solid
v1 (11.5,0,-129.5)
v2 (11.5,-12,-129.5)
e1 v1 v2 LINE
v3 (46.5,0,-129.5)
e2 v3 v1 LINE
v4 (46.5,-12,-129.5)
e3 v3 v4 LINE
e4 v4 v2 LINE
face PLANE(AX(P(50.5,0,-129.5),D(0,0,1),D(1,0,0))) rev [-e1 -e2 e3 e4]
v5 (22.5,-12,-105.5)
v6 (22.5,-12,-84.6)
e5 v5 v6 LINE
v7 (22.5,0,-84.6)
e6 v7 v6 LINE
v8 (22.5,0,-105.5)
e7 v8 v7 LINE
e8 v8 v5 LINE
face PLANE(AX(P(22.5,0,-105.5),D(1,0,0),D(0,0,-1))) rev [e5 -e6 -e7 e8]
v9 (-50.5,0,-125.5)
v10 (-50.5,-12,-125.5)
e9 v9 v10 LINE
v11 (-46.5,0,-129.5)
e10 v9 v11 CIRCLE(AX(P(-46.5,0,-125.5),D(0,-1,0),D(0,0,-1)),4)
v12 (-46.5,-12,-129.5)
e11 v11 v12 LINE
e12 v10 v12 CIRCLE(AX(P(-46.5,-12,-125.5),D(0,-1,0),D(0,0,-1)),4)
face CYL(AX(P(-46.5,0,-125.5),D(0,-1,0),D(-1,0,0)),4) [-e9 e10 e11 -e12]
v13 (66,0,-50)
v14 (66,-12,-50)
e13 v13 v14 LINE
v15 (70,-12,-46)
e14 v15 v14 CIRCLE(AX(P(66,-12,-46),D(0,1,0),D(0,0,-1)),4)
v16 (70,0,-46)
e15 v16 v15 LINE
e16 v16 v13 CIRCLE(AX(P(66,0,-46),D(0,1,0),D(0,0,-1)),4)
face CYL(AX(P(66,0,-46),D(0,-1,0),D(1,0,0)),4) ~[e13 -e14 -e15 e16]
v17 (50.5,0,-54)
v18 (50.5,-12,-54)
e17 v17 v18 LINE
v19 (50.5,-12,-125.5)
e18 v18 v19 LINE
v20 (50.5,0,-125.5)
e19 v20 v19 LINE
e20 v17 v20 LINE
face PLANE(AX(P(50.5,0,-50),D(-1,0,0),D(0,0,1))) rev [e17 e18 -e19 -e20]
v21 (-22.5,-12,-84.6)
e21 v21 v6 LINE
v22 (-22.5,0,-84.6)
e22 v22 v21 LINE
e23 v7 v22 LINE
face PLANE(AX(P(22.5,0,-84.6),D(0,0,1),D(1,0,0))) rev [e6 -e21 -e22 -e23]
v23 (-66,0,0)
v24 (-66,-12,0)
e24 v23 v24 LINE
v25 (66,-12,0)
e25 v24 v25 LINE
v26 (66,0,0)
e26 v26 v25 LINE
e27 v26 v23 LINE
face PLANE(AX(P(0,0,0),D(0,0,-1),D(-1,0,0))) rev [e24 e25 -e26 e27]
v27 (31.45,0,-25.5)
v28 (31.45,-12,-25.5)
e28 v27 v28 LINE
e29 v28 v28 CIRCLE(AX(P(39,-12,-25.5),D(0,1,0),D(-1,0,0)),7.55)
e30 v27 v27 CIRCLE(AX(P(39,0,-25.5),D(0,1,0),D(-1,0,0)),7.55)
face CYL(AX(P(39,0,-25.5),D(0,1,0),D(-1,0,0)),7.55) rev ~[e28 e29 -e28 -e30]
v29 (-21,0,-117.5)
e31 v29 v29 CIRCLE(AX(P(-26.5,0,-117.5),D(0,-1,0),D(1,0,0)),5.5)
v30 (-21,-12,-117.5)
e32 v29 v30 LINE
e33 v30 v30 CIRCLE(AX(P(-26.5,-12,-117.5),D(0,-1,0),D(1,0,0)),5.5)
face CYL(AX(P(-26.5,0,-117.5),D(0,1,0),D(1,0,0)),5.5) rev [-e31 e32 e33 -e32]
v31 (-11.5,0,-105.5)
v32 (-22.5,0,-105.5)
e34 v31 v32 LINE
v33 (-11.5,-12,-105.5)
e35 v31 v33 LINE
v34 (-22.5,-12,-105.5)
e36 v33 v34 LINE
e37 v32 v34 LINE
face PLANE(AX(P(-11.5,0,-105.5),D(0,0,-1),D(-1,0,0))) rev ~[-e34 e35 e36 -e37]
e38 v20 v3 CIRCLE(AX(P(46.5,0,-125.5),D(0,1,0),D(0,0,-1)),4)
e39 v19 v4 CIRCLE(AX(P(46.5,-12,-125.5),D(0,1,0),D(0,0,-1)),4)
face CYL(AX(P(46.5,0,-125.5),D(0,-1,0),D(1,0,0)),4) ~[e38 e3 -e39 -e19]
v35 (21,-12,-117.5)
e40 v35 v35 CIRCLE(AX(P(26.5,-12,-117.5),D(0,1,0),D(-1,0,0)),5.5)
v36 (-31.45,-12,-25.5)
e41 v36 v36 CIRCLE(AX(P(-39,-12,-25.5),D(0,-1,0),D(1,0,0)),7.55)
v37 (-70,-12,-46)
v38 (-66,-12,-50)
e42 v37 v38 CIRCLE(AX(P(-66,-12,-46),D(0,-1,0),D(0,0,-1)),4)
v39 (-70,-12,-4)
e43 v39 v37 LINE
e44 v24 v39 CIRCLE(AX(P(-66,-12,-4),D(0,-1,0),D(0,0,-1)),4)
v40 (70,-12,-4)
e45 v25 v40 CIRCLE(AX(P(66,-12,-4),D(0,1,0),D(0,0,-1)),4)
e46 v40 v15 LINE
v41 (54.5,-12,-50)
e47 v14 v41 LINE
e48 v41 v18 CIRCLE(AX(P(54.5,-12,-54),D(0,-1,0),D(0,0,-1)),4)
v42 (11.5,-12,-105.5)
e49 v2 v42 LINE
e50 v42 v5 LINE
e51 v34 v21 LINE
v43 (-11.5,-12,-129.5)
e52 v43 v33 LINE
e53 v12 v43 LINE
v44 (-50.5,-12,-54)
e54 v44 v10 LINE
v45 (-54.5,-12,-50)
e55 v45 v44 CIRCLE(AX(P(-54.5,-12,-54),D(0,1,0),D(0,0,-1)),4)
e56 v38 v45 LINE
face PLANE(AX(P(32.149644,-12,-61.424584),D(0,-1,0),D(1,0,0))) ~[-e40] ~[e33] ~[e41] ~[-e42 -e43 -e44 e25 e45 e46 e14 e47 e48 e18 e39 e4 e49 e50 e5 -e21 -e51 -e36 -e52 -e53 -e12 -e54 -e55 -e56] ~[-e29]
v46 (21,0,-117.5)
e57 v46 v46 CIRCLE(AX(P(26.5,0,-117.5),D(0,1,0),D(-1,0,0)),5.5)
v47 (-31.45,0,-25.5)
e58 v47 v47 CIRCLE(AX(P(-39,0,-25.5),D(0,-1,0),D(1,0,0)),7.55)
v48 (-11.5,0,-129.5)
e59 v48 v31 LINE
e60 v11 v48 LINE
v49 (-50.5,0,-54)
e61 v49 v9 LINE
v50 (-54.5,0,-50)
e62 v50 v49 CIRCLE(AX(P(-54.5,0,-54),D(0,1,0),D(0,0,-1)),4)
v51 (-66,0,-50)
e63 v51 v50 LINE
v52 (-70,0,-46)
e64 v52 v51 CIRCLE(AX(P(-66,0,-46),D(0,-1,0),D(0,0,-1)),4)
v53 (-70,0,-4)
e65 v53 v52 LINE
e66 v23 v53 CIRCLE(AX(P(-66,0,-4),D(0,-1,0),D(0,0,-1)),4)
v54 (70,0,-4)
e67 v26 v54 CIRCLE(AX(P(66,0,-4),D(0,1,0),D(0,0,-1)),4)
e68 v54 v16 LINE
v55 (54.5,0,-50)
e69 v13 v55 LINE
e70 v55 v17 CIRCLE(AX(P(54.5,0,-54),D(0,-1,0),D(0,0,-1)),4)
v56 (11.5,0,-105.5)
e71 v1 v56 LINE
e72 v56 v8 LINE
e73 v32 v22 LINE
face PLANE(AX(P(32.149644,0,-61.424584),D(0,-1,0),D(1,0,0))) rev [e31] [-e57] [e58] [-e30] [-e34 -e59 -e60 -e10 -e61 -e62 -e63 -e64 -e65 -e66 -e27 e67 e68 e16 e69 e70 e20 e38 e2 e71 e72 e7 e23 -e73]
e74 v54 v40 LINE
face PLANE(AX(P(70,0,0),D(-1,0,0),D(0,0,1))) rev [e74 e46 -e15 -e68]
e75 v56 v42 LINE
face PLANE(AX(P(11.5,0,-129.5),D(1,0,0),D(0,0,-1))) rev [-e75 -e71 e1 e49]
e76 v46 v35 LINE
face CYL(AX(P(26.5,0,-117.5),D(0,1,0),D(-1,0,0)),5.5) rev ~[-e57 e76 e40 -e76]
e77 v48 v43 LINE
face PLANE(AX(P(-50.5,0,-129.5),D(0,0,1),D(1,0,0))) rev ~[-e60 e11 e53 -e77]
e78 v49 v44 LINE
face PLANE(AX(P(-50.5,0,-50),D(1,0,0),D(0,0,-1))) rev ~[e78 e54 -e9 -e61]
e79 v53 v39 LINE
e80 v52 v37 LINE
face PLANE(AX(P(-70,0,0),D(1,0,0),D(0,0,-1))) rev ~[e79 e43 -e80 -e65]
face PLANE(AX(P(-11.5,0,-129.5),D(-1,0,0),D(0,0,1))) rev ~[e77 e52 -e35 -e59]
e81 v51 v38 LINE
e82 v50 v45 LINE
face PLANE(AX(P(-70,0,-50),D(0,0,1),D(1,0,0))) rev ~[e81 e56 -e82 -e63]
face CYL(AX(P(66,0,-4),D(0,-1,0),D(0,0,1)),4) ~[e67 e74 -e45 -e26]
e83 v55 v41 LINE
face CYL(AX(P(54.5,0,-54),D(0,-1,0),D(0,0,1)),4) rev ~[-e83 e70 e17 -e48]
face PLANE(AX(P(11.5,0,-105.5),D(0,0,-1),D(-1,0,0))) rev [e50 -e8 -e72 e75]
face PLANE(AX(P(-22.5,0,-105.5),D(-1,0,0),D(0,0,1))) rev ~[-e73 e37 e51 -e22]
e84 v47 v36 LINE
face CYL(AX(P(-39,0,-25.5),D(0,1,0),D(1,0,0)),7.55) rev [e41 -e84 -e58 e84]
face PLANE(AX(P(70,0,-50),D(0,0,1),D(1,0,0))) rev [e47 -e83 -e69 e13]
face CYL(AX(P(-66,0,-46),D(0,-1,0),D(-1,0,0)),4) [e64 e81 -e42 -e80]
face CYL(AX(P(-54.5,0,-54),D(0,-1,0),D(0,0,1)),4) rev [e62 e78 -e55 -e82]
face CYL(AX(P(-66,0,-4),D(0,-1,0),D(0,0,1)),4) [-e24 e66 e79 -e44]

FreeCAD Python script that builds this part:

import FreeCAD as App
import Part
import Sketcher
from FreeCAD import Vector
Q = App.Units.Quantity


def edges_at(feature, points):
    """Names of the edges that pass closest to the given points."""
    edges = feature.Shape.Edges
    near = lambda p: min(range(len(edges)), key=lambda i: edges[i].distToShape(Part.Vertex(*p))[0])
    return sorted({f"Edge{near(p) + 1}" for p in points})


def add_polygon(sketch, points):
    """Adds a closed chain of lines whose ends are joined by coincident constraints."""
    first, n = sketch.GeometryCount, len(points)
    for a, b in zip(points, points[1:] + points[:1]):
        sketch.addGeometry(Part.LineSegment(App.Vector(*a, 0), App.Vector(*b, 0)), False)
    for i in range(n):
        sketch.addConstraint(Sketcher.Constraint("Coincident", first + i, 2, first + (i + 1) % n, 1))

doc = App.newDocument("Part")
body = doc.addObject("PartDesign::Body", "Body")

# Sketch on XZ plane
sketch1 = doc.addObject("Sketcher::SketchObject", "Sketch")
body.addObject(sketch1)
sketch1.AttachmentSupport = (doc.XZ_Plane, [""])
sketch1.MapMode = "FlatFace"
add_polygon(sketch1, [(0, -85), (0, 0), (-70, 0), (-70, -50), (-50, -50), (-50, -130), (-12, -130), (-12, -106), (-22, -106), (-22, -85)])  # lines 0-9
sketch1.addGeometry(Part.Circle(Vector(-26, -118, 0), Vector(0, 0, 1), 6), False)  # 10
sketch1.addGeometry(Part.Circle(Vector(-39, -26, 0), Vector(0, 0, 1), 8), False)  # 11
sketch1.addConstraint([
    Sketcher.Constraint("Vertical", 0),
    Sketcher.Constraint("Horizontal", 1),
    Sketcher.Constraint("Vertical", 2),
    Sketcher.Constraint("Horizontal", 3),
    Sketcher.Constraint("Vertical", 4),
    Sketcher.Constraint("Horizontal", 5),
    Sketcher.Constraint("Vertical", 6),
    Sketcher.Constraint("Horizontal", 7),
    Sketcher.Constraint("Vertical", 8),
    Sketcher.Constraint("Horizontal", 9),
    Sketcher.Constraint("Coincident", 0, 2, -1, 1),
    Sketcher.Constraint("Diameter", 10, Q("11 mm")),
    Sketcher.Constraint("Diameter", 11, Q("15.1 mm")),
    Sketcher.Constraint("DistanceX", 1, 2, 1, 1, Q("70 mm")),
    Sketcher.Constraint("DistanceX", 5, 1, 5, 2, Q("39 mm")),
    Sketcher.Constraint("DistanceX", 7, 2, 7, 1, Q("11 mm")),
    Sketcher.Constraint("DistanceY", 2, 2, 2, 1, Q("50 mm")),
    Sketcher.Constraint("DistanceY", 6, 1, 6, 2, Q("24 mm")),
    Sketcher.Constraint("DistanceX", 3, 1, 3, 2, Q("19.5 mm")),
    Sketcher.Constraint("DistanceY", 0, 1, 0, 2, Q("84.6 mm")),
    Sketcher.Constraint("DistanceY", 4, 2, 4, 1, Q("79.5 mm")),
    Sketcher.Constraint("DistanceX", 11, 3, -1, 1, Q("39 mm")),
    Sketcher.Constraint("DistanceY", 10, 3, 11, 3, Q("92 mm")),
    Sketcher.Constraint("DistanceX", 3, 2, 10, 3, Q("24 mm")),
    Sketcher.Constraint("DistanceY", 4, 2, 10, 3, Q("12 mm")),
])
pad1 = doc.addObject("PartDesign::Pad", "Pad")
body.addObject(pad1)
pad1.Profile = sketch1
pad1.Length = 12
doc.recompute()

fillet = doc.addObject("PartDesign::Fillet", "Fillet")
body.addObject(fillet)
fillet.Base = (pad1, edges_at(pad1, [
    (-50.5, -6, -129.5),
    (-50.5, -6, -50),
    (-70, -6, -50),
    (-70, -6, 0),
]))
fillet.Radius = 4
body2 = doc.addObject("PartDesign::Body", "Body001")
doc.recompute()

body2.BaseFeature = body
doc.recompute()

mirroring = doc.addObject("Part::Mirroring", "Mirroring")
mirroring.Source = body
mirroring.Base = Vector(0, -6, -42.3)
mirroring.Normal = Vector(1, 0, 0)
body3 = doc.addObject("PartDesign::Body", "Body002")
body3.BaseFeature = mirroring
boolean = doc.addObject("PartDesign::Boolean", "Boolean")
body2.addObject(boolean)
boolean.Type = "Fuse"
boolean.addObjects([body3])
doc.recompute()
mirroring.Visibility = False

doc.recompute()
